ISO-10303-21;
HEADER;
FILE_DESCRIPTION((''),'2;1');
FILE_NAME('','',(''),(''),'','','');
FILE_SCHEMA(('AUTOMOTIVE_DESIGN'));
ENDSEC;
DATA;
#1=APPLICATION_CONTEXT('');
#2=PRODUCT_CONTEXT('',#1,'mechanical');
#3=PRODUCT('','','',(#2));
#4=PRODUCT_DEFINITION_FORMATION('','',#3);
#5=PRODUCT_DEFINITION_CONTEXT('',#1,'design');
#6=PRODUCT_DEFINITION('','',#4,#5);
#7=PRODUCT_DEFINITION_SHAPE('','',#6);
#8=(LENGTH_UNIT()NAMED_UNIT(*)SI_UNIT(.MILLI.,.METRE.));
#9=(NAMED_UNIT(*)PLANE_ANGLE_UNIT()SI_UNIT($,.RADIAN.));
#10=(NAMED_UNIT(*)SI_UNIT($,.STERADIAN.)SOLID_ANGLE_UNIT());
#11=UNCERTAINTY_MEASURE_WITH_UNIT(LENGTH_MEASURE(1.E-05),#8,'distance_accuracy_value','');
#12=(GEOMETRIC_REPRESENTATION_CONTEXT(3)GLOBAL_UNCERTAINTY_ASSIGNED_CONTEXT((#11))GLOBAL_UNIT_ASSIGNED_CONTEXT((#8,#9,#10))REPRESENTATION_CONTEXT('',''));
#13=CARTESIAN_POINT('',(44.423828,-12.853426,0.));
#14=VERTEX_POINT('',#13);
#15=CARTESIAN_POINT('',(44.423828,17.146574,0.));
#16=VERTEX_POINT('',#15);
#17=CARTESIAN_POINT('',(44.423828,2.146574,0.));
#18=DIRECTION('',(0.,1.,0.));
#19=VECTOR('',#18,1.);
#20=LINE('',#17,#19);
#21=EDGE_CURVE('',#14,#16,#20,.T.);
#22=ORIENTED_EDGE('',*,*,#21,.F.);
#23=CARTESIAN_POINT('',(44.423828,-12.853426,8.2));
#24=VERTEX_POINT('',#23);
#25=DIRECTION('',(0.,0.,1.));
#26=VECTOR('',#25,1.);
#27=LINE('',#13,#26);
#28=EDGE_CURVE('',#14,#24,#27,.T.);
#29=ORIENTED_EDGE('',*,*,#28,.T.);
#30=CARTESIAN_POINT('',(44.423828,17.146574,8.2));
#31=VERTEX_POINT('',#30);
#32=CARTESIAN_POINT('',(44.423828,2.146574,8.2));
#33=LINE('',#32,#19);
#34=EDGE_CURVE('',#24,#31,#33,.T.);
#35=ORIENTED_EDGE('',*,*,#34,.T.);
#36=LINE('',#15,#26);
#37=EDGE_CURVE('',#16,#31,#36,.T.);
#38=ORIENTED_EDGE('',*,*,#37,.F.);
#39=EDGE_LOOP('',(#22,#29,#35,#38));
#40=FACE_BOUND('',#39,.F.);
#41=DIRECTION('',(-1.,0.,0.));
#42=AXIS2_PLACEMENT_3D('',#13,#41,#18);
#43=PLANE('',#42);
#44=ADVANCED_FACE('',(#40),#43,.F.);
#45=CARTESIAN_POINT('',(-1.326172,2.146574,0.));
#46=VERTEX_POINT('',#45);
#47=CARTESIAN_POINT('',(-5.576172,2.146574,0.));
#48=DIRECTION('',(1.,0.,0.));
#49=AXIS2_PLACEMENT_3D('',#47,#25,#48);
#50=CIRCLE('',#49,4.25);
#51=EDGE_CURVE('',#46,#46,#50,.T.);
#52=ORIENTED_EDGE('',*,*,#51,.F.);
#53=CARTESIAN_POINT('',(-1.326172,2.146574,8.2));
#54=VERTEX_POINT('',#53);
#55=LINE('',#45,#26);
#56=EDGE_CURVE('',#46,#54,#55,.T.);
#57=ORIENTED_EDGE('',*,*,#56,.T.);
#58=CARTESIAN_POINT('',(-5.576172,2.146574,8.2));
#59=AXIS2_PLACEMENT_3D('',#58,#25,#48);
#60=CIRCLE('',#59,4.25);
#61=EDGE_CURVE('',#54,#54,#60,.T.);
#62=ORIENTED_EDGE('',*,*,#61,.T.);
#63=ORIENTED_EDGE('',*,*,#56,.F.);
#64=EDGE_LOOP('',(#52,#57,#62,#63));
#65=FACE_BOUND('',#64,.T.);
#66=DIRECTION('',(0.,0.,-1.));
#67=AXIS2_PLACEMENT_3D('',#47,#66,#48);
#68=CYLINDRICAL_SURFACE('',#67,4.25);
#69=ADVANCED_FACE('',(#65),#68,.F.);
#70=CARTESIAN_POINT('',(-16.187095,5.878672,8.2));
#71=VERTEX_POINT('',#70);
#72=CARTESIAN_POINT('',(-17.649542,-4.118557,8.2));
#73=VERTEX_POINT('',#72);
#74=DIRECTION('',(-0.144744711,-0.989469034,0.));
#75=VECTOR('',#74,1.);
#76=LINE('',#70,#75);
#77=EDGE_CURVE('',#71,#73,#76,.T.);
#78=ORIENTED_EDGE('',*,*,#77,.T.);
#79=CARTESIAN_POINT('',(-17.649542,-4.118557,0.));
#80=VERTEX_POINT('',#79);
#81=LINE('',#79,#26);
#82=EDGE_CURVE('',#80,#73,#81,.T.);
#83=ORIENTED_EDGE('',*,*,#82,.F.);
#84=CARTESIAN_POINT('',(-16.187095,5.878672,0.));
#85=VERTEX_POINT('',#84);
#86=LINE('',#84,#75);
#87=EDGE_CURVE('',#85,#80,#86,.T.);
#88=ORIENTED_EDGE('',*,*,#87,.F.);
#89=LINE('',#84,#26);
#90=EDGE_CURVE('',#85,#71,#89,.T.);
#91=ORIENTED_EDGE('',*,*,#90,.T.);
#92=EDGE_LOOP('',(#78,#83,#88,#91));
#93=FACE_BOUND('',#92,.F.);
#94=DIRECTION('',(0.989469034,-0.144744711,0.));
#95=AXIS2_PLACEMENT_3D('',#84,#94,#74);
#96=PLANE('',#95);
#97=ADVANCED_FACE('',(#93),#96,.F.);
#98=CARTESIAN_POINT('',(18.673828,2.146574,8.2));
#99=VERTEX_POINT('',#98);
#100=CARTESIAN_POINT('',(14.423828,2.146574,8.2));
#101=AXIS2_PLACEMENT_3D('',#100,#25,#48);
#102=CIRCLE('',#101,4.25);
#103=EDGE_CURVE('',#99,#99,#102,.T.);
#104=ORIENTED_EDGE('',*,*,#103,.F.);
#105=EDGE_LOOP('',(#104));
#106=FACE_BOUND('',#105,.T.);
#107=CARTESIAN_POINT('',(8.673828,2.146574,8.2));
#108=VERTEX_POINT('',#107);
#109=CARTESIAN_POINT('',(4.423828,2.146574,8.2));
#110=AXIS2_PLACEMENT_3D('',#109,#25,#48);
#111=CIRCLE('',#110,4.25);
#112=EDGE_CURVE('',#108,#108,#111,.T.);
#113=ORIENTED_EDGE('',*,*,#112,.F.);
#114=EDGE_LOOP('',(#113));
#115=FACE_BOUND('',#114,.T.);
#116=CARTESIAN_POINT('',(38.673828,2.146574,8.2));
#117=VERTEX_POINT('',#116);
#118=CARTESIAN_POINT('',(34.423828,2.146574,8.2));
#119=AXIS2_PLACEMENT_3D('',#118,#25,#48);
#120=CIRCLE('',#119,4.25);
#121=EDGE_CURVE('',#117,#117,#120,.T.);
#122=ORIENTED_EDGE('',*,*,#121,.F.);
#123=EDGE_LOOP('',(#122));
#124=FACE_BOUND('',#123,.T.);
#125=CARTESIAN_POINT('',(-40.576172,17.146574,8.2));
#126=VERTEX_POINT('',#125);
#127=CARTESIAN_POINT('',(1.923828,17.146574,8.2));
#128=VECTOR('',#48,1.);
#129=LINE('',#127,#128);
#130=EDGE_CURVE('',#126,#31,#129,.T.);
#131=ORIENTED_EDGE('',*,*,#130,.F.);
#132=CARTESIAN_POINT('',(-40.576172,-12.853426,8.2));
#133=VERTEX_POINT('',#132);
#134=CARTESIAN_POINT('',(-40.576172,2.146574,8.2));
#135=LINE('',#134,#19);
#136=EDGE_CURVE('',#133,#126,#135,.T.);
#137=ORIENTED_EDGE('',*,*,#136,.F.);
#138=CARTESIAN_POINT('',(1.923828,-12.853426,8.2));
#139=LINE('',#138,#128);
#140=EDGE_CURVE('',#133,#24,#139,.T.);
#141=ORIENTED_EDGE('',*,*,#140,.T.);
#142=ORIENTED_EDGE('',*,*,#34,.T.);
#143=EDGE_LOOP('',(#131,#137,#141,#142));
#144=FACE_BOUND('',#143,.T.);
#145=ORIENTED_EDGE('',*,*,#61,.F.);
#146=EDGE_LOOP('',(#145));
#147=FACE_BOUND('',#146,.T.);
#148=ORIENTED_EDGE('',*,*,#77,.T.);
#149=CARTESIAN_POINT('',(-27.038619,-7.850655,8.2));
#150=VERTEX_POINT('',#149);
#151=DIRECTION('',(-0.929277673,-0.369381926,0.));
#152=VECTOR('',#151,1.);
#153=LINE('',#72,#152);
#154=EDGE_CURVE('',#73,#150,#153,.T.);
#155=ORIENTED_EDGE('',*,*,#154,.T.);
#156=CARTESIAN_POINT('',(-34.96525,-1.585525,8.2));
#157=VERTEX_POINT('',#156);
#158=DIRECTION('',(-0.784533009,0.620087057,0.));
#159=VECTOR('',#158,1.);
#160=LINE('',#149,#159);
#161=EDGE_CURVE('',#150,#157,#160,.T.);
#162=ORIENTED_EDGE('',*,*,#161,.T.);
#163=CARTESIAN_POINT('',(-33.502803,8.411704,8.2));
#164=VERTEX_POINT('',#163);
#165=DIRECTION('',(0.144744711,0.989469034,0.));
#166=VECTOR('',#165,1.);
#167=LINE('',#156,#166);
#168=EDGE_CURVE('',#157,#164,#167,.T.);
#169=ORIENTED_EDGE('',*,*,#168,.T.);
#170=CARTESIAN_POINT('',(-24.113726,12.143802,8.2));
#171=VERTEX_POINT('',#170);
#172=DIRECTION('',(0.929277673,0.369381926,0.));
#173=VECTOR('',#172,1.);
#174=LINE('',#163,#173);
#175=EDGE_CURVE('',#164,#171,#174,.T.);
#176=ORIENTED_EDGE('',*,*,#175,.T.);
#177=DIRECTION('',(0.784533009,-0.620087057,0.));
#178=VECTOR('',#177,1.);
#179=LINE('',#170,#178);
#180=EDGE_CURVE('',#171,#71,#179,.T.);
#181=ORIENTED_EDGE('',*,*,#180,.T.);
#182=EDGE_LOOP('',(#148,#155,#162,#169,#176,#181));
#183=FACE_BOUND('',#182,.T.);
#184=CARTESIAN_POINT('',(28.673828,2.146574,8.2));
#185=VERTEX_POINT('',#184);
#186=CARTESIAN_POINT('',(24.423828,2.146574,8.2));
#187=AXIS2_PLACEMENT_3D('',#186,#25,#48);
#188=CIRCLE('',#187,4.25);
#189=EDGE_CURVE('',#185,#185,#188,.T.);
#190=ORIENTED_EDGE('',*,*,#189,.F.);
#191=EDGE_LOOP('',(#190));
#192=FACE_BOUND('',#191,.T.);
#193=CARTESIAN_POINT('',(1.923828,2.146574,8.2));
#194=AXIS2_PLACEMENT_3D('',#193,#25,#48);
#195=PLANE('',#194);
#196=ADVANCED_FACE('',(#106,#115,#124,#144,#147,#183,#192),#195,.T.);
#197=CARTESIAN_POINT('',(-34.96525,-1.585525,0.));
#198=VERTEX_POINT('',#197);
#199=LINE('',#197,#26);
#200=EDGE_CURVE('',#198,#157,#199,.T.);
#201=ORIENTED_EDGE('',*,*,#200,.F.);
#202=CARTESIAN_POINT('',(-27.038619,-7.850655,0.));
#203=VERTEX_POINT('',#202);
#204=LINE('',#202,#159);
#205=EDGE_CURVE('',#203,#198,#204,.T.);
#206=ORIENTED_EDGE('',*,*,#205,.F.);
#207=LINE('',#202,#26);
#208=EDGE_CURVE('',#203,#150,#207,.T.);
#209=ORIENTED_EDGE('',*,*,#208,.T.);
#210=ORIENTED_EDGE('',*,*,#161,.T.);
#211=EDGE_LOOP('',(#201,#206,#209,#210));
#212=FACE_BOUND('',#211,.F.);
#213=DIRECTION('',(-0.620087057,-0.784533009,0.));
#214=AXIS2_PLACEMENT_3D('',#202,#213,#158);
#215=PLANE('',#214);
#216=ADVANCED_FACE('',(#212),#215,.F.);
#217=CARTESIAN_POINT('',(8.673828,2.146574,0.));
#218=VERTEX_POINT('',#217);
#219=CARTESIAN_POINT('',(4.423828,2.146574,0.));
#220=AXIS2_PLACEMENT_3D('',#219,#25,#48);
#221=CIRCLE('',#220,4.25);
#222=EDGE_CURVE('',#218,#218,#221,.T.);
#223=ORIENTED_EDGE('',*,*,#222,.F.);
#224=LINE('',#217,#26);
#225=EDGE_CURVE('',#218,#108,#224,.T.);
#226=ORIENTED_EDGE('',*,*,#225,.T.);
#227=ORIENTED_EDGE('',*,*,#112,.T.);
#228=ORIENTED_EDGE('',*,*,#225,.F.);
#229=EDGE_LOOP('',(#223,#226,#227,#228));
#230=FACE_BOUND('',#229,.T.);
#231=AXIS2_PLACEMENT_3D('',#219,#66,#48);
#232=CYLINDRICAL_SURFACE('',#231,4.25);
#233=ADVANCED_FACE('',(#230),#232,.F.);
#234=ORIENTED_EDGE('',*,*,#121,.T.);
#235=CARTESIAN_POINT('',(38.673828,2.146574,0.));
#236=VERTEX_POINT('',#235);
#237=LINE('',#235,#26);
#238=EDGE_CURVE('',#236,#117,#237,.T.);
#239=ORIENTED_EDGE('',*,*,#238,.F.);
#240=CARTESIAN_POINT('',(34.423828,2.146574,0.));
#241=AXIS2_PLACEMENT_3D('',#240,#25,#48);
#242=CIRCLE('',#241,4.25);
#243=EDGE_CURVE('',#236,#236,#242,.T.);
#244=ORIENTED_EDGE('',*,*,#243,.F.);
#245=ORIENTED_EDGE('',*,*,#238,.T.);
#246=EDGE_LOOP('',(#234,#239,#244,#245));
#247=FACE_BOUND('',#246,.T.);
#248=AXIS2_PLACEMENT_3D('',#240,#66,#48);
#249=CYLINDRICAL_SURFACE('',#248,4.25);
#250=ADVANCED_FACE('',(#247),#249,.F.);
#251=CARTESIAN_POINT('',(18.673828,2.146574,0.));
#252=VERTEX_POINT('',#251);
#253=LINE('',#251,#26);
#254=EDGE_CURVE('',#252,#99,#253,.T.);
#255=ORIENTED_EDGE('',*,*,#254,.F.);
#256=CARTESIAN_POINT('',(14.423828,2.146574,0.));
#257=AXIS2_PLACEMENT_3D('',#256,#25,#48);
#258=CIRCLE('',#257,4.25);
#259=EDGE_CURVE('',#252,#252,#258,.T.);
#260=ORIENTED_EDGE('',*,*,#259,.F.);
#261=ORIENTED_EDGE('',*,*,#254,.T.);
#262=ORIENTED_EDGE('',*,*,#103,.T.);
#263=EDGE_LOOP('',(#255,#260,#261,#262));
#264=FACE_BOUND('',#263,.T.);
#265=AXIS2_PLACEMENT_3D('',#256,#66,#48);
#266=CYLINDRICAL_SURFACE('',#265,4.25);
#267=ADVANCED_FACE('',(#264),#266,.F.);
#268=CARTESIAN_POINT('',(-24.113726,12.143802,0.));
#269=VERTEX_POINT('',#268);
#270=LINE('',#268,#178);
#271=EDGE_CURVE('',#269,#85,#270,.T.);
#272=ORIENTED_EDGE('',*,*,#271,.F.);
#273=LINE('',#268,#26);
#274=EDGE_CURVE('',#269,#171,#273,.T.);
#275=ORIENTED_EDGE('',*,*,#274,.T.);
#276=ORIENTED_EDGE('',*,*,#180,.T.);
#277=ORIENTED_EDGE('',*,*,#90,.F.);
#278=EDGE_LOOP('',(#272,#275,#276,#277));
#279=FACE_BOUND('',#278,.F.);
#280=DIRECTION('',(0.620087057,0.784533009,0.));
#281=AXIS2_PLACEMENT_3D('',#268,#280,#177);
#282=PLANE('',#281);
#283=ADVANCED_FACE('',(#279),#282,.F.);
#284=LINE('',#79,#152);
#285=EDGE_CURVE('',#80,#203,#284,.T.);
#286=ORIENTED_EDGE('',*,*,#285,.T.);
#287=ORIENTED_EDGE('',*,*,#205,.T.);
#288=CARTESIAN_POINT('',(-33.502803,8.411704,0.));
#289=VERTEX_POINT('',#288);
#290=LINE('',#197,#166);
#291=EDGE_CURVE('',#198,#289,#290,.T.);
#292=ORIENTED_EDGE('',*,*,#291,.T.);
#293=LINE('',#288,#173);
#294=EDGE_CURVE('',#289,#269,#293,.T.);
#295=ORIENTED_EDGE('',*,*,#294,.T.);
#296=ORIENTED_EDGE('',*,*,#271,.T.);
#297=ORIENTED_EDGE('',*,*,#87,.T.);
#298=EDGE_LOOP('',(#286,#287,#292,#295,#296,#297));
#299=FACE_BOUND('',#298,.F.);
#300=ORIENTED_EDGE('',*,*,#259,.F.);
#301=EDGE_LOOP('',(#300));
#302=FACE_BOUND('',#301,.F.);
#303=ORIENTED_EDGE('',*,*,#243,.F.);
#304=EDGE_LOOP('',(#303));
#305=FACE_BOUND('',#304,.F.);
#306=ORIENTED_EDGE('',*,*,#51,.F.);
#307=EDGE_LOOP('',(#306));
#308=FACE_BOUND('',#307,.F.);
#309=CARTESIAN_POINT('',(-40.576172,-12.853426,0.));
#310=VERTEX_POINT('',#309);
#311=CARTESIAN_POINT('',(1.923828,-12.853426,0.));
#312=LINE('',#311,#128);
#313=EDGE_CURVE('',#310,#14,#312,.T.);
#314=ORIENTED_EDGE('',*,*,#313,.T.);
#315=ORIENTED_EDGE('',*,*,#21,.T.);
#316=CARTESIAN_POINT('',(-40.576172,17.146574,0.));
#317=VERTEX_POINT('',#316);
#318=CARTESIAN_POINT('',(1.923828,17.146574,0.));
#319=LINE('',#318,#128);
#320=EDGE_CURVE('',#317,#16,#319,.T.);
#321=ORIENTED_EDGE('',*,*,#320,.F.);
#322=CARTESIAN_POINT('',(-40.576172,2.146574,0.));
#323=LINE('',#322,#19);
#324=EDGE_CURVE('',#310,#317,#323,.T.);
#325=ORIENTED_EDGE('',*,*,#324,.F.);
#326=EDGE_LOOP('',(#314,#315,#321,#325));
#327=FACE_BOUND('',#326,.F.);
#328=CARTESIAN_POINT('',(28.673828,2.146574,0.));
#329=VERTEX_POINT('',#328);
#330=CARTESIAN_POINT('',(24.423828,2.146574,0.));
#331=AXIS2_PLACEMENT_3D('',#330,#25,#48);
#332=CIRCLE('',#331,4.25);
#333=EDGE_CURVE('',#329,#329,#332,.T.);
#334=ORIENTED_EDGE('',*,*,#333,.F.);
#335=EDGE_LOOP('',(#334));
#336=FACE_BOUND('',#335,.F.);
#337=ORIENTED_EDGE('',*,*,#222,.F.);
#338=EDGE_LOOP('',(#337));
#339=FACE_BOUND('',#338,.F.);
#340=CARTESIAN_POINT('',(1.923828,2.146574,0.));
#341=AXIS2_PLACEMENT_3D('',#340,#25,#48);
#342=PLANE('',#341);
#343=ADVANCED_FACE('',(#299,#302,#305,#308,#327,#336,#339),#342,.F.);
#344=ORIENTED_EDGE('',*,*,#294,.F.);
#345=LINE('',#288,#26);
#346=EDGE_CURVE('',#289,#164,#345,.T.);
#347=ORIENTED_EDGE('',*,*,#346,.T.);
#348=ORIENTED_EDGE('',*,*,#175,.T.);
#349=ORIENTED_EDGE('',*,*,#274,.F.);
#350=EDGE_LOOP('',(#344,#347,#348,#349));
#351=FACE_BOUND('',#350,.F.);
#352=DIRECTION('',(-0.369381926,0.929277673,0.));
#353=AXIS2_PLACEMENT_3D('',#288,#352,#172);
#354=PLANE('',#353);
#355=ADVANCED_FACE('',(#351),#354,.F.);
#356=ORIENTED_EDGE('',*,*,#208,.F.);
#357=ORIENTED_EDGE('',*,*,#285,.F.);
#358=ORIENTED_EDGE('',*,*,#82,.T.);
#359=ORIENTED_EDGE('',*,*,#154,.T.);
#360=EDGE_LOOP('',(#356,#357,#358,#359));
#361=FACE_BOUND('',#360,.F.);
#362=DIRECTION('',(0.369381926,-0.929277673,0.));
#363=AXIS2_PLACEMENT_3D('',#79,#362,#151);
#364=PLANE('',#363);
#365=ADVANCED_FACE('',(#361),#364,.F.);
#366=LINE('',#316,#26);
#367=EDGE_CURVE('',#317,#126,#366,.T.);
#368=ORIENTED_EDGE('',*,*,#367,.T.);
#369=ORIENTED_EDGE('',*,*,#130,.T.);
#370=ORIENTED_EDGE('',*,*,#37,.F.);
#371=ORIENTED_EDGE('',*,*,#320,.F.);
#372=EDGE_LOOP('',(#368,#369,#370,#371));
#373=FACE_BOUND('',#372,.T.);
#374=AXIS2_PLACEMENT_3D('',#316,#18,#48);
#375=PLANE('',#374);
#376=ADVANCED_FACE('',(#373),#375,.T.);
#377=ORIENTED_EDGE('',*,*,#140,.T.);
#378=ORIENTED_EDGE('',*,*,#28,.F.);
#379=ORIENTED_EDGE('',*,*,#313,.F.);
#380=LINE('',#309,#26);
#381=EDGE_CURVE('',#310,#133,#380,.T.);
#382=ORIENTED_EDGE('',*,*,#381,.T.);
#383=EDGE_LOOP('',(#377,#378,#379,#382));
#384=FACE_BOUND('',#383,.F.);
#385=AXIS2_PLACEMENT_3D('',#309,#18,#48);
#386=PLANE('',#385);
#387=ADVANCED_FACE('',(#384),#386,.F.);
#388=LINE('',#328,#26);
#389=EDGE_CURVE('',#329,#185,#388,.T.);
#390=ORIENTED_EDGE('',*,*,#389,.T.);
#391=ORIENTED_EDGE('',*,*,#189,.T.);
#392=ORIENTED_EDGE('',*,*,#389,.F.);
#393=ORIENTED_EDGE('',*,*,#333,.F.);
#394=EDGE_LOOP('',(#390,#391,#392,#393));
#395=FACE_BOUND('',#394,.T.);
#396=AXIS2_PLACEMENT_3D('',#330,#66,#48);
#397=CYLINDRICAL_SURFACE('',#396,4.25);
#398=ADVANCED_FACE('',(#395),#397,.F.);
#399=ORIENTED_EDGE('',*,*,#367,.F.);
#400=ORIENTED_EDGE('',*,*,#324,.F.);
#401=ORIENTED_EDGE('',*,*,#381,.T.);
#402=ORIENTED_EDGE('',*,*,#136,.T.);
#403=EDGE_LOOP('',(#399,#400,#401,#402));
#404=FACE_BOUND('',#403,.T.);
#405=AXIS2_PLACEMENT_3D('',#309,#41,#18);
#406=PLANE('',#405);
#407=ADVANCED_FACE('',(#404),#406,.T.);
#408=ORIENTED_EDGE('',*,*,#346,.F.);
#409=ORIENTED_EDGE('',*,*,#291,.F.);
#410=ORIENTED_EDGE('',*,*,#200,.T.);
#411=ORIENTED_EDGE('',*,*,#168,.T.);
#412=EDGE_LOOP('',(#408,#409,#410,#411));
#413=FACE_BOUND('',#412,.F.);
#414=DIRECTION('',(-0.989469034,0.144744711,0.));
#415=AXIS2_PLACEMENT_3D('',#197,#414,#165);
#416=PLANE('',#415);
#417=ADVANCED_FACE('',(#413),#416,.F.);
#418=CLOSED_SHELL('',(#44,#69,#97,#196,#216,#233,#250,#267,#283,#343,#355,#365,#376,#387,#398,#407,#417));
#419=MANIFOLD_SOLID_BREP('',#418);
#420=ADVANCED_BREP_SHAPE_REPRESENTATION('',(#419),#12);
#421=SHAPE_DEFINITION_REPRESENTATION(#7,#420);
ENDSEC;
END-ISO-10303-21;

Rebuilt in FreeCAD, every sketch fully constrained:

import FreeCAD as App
import Part
import Sketcher


def add_polygon(sketch, points):
    """Adds a closed chain of lines whose ends are joined by coincident constraints."""
    first, n = sketch.GeometryCount, len(points)
    for a, b in zip(points, points[1:] + points[:1]):
        sketch.addGeometry(Part.LineSegment(App.Vector(*a, 0), App.Vector(*b, 0)), False)
    for i in range(n):
        sketch.addConstraint(Sketcher.Constraint("Coincident", first + i, 2, first + (i + 1) % n, 1))

doc = App.newDocument("Part")
body = doc.addObject("PartDesign::Body", "Body")

# Sketch on XY plane
sketch1 = body.newObject("Sketcher::SketchObject", "Sketch")
sketch1.AttachmentSupport = (doc.getObject("XY_Plane"), [""])
sketch1.MapMode = "FlatFace"
add_polygon(sketch1, [(-40.576172, 17.146574), (-40.576172, -12.853426), (44.423828, -12.853426), (44.423828, 17.146574)])  # lines 0-3
add_polygon(sketch1, [(-27.038619, -7.850655), (-34.96525, -1.585525), (-33.502803, 8.411704), (-24.113726, 12.143802), (-16.187095, 5.878672), (-17.649542, -4.118557)])  # lines 4-9
sketch1.addGeometry(Part.Circle(App.Vector(-5.576172, 2.146574, 0), App.Vector(0, 0, 1), 4.25), False)  # 10
sketch1.addGeometry(Part.Circle(App.Vector(4.423828, 2.146574, 0), App.Vector(0, 0, 1), 4.25), False)  # 11
sketch1.addGeometry(Part.Circle(App.Vector(14.423828, 2.146574, 0), App.Vector(0, 0, 1), 4.25), False)  # 12
sketch1.addGeometry(Part.Circle(App.Vector(24.423828, 2.146574, 0), App.Vector(0, 0, 1), 4.25), False)  # 13
sketch1.addGeometry(Part.Circle(App.Vector(34.423828, 2.146574, 0), App.Vector(0, 0, 1), 4.25), False)  # 14
sketch1.addConstraint([
    Sketcher.Constraint("Vertical", 0),
    Sketcher.Constraint("Horizontal", 1),
    Sketcher.Constraint("Vertical", 2),
    Sketcher.Constraint("Horizontal", 3),
    Sketcher.Constraint("Equal", 10, 11),
    Sketcher.Constraint("Equal", 11, 12),
    Sketcher.Constraint("Equal", 12, 13),
    Sketcher.Constraint("Equal", 13, 14),
    Sketcher.Constraint("Parallel", 4, 7),
    Sketcher.Constraint("Parallel", 5, 8),
    Sketcher.Constraint("Parallel", 6, 9),
    Sketcher.Constraint("Horizontal", 10, 3, 11, 3),
    Sketcher.Constraint("Horizontal", 11, 3, 12, 3),
    Sketcher.Constraint("Horizontal", 12, 3, 13, 3),
    Sketcher.Constraint("Horizontal", 13, 3, 14, 3),
    Sketcher.Constraint("Equal", 4, 5),
    Sketcher.Constraint("Equal", 5, 6),
    Sketcher.Constraint("Equal", 6, 7),
    Sketcher.Constraint("Diameter", 10, 8.5),
    Sketcher.Constraint("DistanceX", 1, 1, 1, 2, 85.0),
    Sketcher.Constraint("DistanceY", 0, 2, 0, 1, 30.0),
    Sketcher.Constraint("DistanceX", 10, 3, 11, 3, 10.0),
    Sketcher.Constraint("DistanceX", 11, 3, 12, 3, 10.0),
    Sketcher.Constraint("DistanceX", 12, 3, 13, 3, 10.0),
    Sketcher.Constraint("DistanceX", 13, 3, 14, 3, 10.0),
    Sketcher.Constraint("DistanceX", 0, 2, 10, 3, 35.0),
    Sketcher.Constraint("DistanceY", 0, 2, 10, 3, 15.0),
    Sketcher.Constraint("DistanceY", 0, 2, 4, 2, 11.267901),
    Sketcher.Constraint("DistanceY", 5, 2, 6, 2, 3.732098),
    Sketcher.Constraint("Distance", 4, 10.10363),
    Sketcher.Constraint("DistanceX", 10, 3, -1, 1, 5.576172),
    Sketcher.Constraint("DistanceX", 4, 2, -1, 1, 34.96525),
    Sketcher.Constraint("DistanceX", 9, 2, -1, 1, 27.038619),
    Sketcher.Constraint("DistanceY", 4, 2, 5, 2, 9.997229),
    Sketcher.Constraint("DistanceY", -1, 1, 10, 3, 2.146574),
])
pad1 = body.newObject("PartDesign::Pad", "Pad")
pad1.Profile = sketch1
pad1.Length = 8.2

doc.recompute()
